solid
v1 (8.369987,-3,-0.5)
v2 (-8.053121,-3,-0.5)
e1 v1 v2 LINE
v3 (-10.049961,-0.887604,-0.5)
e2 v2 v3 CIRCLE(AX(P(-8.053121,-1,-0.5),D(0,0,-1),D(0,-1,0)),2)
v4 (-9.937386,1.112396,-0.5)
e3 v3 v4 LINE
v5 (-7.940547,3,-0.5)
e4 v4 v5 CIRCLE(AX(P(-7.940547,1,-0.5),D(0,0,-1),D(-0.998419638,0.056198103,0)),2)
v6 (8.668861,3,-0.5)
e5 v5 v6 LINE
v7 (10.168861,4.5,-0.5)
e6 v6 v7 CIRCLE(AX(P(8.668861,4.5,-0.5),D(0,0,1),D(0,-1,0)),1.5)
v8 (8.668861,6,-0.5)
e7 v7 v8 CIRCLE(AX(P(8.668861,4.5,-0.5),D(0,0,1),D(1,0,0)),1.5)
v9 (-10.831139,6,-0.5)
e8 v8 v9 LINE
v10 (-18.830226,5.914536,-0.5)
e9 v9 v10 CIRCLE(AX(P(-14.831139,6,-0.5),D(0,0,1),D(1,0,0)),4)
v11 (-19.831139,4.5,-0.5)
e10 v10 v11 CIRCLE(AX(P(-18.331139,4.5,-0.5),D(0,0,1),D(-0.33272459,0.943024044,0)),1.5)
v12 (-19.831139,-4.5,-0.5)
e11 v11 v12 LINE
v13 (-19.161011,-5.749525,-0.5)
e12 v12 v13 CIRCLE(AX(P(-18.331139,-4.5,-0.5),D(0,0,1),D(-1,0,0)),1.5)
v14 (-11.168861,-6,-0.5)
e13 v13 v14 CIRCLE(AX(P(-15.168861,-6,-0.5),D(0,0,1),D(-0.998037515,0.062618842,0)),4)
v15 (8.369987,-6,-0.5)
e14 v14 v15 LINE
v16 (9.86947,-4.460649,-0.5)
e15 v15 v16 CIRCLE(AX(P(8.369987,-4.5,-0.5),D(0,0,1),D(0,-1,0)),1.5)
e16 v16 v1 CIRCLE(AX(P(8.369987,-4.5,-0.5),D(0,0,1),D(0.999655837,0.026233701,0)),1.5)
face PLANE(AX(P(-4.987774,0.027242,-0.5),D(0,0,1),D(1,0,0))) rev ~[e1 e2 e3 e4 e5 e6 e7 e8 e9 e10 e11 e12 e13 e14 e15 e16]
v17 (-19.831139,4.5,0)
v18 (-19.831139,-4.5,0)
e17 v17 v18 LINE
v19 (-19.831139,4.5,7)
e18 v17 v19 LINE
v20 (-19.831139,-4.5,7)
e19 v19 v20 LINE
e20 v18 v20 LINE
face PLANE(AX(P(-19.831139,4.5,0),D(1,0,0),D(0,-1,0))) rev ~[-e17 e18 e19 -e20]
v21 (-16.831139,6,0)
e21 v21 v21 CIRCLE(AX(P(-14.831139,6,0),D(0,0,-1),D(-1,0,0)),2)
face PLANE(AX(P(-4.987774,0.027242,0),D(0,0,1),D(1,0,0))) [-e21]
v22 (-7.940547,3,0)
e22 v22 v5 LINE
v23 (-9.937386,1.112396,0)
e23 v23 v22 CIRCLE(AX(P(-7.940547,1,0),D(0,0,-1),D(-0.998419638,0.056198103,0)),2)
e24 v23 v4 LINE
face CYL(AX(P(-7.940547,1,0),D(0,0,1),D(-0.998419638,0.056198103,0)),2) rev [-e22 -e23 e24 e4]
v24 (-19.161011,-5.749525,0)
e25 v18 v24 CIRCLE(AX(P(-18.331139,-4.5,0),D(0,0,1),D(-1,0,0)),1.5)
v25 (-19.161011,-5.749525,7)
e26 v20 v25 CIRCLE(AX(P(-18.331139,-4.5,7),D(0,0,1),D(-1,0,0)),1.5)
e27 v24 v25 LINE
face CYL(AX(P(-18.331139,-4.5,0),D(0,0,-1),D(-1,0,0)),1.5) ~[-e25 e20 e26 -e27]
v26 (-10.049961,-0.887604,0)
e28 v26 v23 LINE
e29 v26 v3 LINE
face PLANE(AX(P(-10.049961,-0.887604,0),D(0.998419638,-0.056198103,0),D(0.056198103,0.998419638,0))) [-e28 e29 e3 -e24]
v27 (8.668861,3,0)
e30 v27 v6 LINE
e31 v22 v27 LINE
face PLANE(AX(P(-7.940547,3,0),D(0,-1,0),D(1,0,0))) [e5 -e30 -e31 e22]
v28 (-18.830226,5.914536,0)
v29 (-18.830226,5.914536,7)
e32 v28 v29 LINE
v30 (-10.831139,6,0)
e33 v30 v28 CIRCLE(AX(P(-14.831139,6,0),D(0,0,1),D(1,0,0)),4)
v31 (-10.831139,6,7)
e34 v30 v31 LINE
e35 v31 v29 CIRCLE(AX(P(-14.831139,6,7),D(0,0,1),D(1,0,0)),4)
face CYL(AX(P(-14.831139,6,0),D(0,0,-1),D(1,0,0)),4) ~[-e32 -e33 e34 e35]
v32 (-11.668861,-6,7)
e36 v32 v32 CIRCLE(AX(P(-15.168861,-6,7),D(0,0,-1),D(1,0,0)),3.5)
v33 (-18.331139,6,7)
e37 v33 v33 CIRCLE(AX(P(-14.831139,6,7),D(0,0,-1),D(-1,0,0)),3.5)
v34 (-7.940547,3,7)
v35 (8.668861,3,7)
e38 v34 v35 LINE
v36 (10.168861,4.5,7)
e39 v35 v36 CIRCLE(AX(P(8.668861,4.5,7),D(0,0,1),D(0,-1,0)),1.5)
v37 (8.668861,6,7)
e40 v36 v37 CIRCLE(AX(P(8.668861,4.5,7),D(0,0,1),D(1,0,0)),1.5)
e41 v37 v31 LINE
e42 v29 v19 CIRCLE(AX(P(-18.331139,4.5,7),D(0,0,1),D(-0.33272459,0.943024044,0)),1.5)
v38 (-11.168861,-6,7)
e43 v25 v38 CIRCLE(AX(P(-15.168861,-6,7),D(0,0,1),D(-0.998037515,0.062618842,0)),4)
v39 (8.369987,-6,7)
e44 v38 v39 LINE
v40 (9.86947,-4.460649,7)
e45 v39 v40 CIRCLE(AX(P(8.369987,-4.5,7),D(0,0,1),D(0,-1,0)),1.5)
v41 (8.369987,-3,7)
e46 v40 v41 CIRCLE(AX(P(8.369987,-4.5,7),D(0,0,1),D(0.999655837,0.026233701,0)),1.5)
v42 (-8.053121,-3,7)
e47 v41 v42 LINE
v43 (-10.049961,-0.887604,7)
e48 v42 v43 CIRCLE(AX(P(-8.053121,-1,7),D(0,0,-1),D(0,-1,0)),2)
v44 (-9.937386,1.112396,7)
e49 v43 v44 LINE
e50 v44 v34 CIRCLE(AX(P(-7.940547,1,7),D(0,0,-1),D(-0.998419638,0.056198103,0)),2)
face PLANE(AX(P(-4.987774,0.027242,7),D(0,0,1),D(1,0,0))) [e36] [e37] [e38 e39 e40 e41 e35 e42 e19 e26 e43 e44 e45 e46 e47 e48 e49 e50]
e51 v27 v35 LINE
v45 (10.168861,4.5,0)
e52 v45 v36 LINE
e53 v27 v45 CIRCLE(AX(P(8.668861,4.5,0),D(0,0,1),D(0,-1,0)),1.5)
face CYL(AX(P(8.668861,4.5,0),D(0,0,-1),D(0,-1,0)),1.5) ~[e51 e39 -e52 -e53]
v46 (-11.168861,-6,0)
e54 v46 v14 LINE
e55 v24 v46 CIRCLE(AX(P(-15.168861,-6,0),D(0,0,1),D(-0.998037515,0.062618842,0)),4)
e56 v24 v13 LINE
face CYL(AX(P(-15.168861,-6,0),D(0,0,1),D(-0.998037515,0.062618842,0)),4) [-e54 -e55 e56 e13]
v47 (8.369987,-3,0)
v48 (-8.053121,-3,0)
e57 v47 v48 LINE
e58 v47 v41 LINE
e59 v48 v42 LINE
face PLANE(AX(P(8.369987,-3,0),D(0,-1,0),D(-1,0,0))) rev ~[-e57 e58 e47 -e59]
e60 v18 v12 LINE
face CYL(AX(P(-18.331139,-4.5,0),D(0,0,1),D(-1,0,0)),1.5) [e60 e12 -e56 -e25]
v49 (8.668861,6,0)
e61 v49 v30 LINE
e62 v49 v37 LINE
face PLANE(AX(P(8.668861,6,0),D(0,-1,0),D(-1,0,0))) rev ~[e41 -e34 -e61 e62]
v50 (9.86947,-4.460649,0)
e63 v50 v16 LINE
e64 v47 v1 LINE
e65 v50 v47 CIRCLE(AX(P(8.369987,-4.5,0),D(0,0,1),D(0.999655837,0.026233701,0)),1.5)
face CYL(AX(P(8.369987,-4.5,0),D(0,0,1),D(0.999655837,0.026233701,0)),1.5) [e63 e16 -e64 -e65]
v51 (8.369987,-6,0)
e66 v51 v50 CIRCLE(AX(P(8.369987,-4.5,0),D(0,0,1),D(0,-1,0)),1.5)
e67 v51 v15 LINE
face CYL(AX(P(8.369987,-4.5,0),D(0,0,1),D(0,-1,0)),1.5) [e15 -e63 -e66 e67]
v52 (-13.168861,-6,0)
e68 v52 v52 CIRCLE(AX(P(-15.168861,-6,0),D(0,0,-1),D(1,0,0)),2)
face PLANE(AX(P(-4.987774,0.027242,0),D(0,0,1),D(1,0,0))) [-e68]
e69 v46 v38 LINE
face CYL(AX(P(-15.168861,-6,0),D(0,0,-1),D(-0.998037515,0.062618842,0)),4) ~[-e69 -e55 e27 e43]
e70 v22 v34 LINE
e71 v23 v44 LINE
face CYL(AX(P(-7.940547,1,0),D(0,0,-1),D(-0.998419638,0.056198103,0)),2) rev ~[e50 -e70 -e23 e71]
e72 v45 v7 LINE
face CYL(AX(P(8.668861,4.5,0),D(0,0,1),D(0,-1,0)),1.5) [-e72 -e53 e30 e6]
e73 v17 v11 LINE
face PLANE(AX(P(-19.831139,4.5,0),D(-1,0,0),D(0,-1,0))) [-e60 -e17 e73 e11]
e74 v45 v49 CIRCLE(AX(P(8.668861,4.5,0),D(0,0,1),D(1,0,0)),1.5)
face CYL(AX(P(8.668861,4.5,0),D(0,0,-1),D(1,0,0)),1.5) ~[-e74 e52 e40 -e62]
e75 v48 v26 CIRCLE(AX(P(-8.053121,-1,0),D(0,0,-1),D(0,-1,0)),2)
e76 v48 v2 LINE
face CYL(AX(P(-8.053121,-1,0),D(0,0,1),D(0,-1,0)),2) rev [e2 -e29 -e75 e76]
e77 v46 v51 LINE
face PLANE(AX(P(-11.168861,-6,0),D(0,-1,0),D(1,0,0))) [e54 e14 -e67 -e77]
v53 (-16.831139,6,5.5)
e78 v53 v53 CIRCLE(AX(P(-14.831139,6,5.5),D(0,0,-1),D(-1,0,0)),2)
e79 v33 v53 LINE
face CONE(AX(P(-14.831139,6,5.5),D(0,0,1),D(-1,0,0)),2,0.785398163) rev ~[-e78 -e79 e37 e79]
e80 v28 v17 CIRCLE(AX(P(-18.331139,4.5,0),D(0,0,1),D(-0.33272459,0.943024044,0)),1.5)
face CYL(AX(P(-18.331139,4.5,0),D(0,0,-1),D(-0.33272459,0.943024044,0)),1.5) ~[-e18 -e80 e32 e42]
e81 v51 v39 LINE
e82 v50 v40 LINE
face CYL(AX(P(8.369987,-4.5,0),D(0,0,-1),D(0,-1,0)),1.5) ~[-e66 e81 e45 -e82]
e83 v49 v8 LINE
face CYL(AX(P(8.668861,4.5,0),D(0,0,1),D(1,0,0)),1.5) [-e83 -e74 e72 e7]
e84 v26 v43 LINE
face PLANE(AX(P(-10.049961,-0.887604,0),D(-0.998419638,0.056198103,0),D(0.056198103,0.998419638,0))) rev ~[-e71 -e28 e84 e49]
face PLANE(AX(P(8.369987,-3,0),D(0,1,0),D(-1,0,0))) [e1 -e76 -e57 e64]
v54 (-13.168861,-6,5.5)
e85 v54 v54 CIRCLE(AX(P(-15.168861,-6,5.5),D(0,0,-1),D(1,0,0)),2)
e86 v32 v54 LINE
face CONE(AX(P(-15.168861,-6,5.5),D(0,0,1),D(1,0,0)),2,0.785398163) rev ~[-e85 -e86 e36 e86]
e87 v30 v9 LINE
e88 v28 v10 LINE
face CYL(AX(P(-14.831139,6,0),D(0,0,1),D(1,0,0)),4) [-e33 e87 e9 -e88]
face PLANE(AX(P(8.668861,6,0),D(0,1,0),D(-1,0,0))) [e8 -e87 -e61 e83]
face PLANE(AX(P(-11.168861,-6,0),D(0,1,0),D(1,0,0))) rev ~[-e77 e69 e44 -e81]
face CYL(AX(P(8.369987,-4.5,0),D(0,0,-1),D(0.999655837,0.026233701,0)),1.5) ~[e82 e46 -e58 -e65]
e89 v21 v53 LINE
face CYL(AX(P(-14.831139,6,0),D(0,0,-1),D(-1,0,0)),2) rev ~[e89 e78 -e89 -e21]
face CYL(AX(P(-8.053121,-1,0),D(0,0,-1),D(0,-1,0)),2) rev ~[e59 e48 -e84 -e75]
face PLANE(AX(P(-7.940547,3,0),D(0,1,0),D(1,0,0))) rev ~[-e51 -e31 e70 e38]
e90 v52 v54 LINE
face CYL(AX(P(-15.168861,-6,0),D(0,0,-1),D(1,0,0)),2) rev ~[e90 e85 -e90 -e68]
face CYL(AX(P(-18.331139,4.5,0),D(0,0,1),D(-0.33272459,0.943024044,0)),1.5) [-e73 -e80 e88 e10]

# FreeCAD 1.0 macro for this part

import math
import FreeCAD as App
import Part
import Sketcher

V = App.Vector


def edges_at(feature, points):
    """Names of the edges that pass closest to the given points."""
    edges = feature.Shape.Edges
    near = lambda p: min(range(len(edges)), key=lambda i: edges[i].distToShape(Part.Vertex(*p))[0])
    return sorted({f"Edge{near(p) + 1}" for p in points})

doc = App.newDocument("Part")
body = doc.addObject("PartDesign::Body", "Body")

sketch1 = body.newObject("Sketcher::SketchObject", "Sketch")
sketch1.AttachmentSupport = (doc.getObject("XY_Plane"), [""])
sketch1.MapMode = "FlatFace"
sketch1.addGeometry([
    Part.ArcOfCircle(Part.Circle(V(8.369987, -4.5, 0), V(0, 0, 1), 1.5), math.radians(1.503253), math.radians(90)),
    Part.LineSegment(V(8.369987, -3, 0), V(-8.053121, -3, 0)),
    Part.ArcOfCircle(Part.Circle(V(-8.053121, -1, 0), V(0, 0, 1), 2), math.radians(176.778389), math.radians(270)),
    Part.LineSegment(V(-10.049961, -0.887604, 0), V(-9.937386, 1.112396, 0)),
    Part.ArcOfCircle(Part.Circle(V(-7.940547, 1, 0), V(0, 0, 1), 2), math.radians(90), math.radians(176.778389)),
    Part.LineSegment(V(-7.940547, 3, 0), V(8.668861, 3, 0)),
    Part.ArcOfCircle(Part.Circle(V(8.668861, 4.5, 0), V(0, 0, 1), 1.5), math.radians(-90), math.radians(0)),
    Part.ArcOfCircle(Part.Circle(V(8.668861, 4.5, 0), V(0, 0, 1), 1.5), math.radians(0), math.radians(90)),
    Part.LineSegment(V(8.668861, 6, 0), V(-10.831139, 6, 0)),
    Part.ArcOfCircle(Part.Circle(V(-14.831139, 6, 0), V(0, 0, 1), 4), math.radians(0), math.radians(181.224274)),
    Part.ArcOfCircle(Part.Circle(V(-18.331139, 4.5, 0), V(0, 0, 1), 1.5), math.radians(109.434231), math.radians(180)),
    Part.LineSegment(V(-19.831139, 4.5, 0), V(-19.831139, -4.5, 0)),
    Part.ArcOfCircle(Part.Circle(V(-18.331139, -4.5, 0), V(0, 0, 1), 1.5), math.radians(180), math.radians(236.409856)),
    Part.ArcOfCircle(Part.Circle(V(-15.168861, -6, 0), V(0, 0, 1), 4), math.radians(176.409856), math.radians(360)),
    Part.LineSegment(V(-11.168861, -6, 0), V(8.369987, -6, 0)),
    Part.ArcOfCircle(Part.Circle(V(8.369987, -4.5, 0), V(0, 0, 1), 1.5), math.radians(-90), math.radians(1.503253)),
    Part.Circle(V(-15.168861, -6, 0), V(0, 0, 1), 2),
    Part.Circle(V(-14.831139, 6, 0), V(0, 0, 1), 2),
], False)
sketch1.addConstraint([
    Sketcher.Constraint("Coincident", 0, 2, 1, 1),
    Sketcher.Constraint("Coincident", 1, 2, 2, 2),
    Sketcher.Constraint("Coincident", 2, 1, 3, 1),
    Sketcher.Constraint("Coincident", 3, 2, 4, 2),
    Sketcher.Constraint("Coincident", 4, 1, 5, 1),
    Sketcher.Constraint("Coincident", 5, 2, 6, 1),
    Sketcher.Constraint("Coincident", 6, 2, 7, 1),
    Sketcher.Constraint("Coincident", 7, 2, 8, 1),
    Sketcher.Constraint("Coincident", 8, 2, 9, 1),
    Sketcher.Constraint("Coincident", 9, 2, 10, 1),
    Sketcher.Constraint("Coincident", 10, 2, 11, 1),
    Sketcher.Constraint("Coincident", 11, 2, 12, 1),
    Sketcher.Constraint("Coincident", 12, 2, 13, 1),
    Sketcher.Constraint("Coincident", 13, 2, 14, 1),
    Sketcher.Constraint("Coincident", 14, 2, 15, 1),
    Sketcher.Constraint("Coincident", 15, 2, 0, 1),
    Sketcher.Constraint("Horizontal", 1),
    Sketcher.Constraint("Horizontal", 5),
    Sketcher.Constraint("Horizontal", 8),
    Sketcher.Constraint("Vertical", 11),
    Sketcher.Constraint("Horizontal", 14),
    Sketcher.Constraint("Coincident", 7, 3, 6, 3),
    Sketcher.Constraint("Coincident", 15, 3, 0, 3),
    Sketcher.Constraint("Coincident", 16, 3, 13, 3),
    Sketcher.Constraint("Coincident", 17, 3, 9, 3),
    Sketcher.Constraint("Diameter", 16, 4.0),
    Sketcher.Constraint("Diameter", 17, 4.0),
    Sketcher.Constraint("Radius", 2, 2.0),
    Sketcher.Constraint("Radius", 4, 2.0),
    Sketcher.Constraint("Radius", 9, 4.0),
    Sketcher.Constraint("Radius", 13, 4.0),
    Sketcher.Constraint("Radius", 0, 1.5),
    Sketcher.Constraint("Radius", 6, 1.5),
    Sketcher.Constraint("Radius", 10, 1.5),
    Sketcher.Constraint("Radius", 12, 1.5),
    Sketcher.Constraint("DistanceY", 11, 2, 11, 1, 9.0),
    Sketcher.Constraint("DistanceX", 8, 2, 8, 1, 19.5),
    Sketcher.Constraint("DistanceY", 2, 3, -1, 1, 1.0),
    Sketcher.Constraint("DistanceY", -1, 1, 4, 3, 1.0),
    Sketcher.Constraint("DistanceY", -1, 1, 9, 3, 6.0),
    Sketcher.Constraint("DistanceY", 13, 3, -1, 1, 6.0),
    Sketcher.Constraint("DistanceX", 10, 3, 6, 3, 27.0),
    Sketcher.Constraint("DistanceY", 12, 3, 10, 3, 9.0),
    Sketcher.Constraint("DistanceY", 2, 1, 3, 2, 2.0),
    Sketcher.Constraint("DistanceY", 0, 3, 6, 2, 9.0),
    Sketcher.Constraint("DistanceX", 10, 2, 9, 3, 5.0),
    Sketcher.Constraint("DistanceY", 12, 3, 10, 2, 9.0),
    Sketcher.Constraint("DistanceY", -1, 1, 10, 3, 4.5),
    Sketcher.Constraint("DistanceX", 5, 2, 6, 2, 1.5),
    Sketcher.Constraint("DistanceX", 5, 1, 5, 2, 16.609408),
    Sketcher.Constraint("DistanceX", 13, 3, 2, 1, 5.118901),
    Sketcher.Constraint("DistanceX", 1, 2, 1, 1, 16.423108),
    Sketcher.Constraint("DistanceX", 14, 1, 14, 2, 19.538848),
    Sketcher.Constraint("DistanceX", 2, 3, -1, 1, 8.053121),
    Sketcher.Constraint("DistanceX", -1, 1, 6, 3, 8.668861),
    Sketcher.Constraint("DistanceX", 13, 3, -1, 1, 15.168861),
    Sketcher.Constraint("DistanceX", 1, 2, -1, 1, 8.053121),
    Sketcher.Constraint("DistanceX", -1, 1, 15, 2, 9.86947),
    Sketcher.Constraint("DistanceY", 15, 2, -1, 1, 4.460649),
    Sketcher.Constraint("DistanceX", 4, 3, 6, 3, 16.609408),
])
pad1 = body.newObject("PartDesign::Pad", "Pad")
pad1.Profile = sketch1
pad1.Length = 7

sketch2 = body.newObject("Sketcher::SketchObject", "Sketch001")
sketch2.AttachmentSupport = (doc.getObject("XY_Plane"), [""])
sketch2.MapMode = "FlatFace"
sketch2.addGeometry([
    Part.ArcOfCircle(Part.Circle(V(8.369987, -4.5, 0), V(0, 0, 1), 1.5), math.radians(1.503253), math.radians(90)),
    Part.LineSegment(V(8.369987, -3, 0), V(-8.053121, -3, 0)),
    Part.ArcOfCircle(Part.Circle(V(-8.053121, -1, 0), V(0, 0, 1), 2), math.radians(176.778389), math.radians(270)),
    Part.LineSegment(V(-10.049961, -0.887604, 0), V(-9.937386, 1.112396, 0)),
    Part.ArcOfCircle(Part.Circle(V(-7.940547, 1, 0), V(0, 0, 1), 2), math.radians(90), math.radians(176.778389)),
    Part.LineSegment(V(-7.940547, 3, 0), V(8.668861, 3, 0)),
    Part.ArcOfCircle(Part.Circle(V(8.668861, 4.5, 0), V(0, 0, 1), 1.5), math.radians(-90), math.radians(0)),
    Part.ArcOfCircle(Part.Circle(V(8.668861, 4.5, 0), V(0, 0, 1), 1.5), math.radians(0), math.radians(90)),
    Part.LineSegment(V(8.668861, 6, 0), V(-10.831139, 6, 0)),
    Part.ArcOfCircle(Part.Circle(V(-14.831139, 6, 0), V(0, 0, 1), 4), math.radians(0), math.radians(181.224274)),
    Part.ArcOfCircle(Part.Circle(V(-18.331139, 4.5, 0), V(0, 0, 1), 1.5), math.radians(109.434231), math.radians(180)),
    Part.LineSegment(V(-19.831139, 4.5, 0), V(-19.831139, -4.5, 0)),
    Part.ArcOfCircle(Part.Circle(V(-18.331139, -4.5, 0), V(0, 0, 1), 1.5), math.radians(180), math.radians(236.409856)),
    Part.ArcOfCircle(Part.Circle(V(-15.168861, -6, 0), V(0, 0, 1), 4), math.radians(176.409856), math.radians(360)),
    Part.LineSegment(V(-11.168861, -6, 0), V(8.369987, -6, 0)),
    Part.ArcOfCircle(Part.Circle(V(8.369987, -4.5, 0), V(0, 0, 1), 1.5), math.radians(-90), math.radians(1.503253)),
], False)
sketch2.addConstraint([
    Sketcher.Constraint("Coincident", 0, 2, 1, 1),
    Sketcher.Constraint("Coincident", 1, 2, 2, 2),
    Sketcher.Constraint("Coincident", 2, 1, 3, 1),
    Sketcher.Constraint("Coincident", 3, 2, 4, 2),
    Sketcher.Constraint("Coincident", 4, 1, 5, 1),
    Sketcher.Constraint("Coincident", 5, 2, 6, 1),
    Sketcher.Constraint("Coincident", 6, 2, 7, 1),
    Sketcher.Constraint("Coincident", 7, 2, 8, 1),
    Sketcher.Constraint("Coincident", 8, 2, 9, 1),
    Sketcher.Constraint("Coincident", 9, 2, 10, 1),
    Sketcher.Constraint("Coincident", 10, 2, 11, 1),
    Sketcher.Constraint("Coincident", 11, 2, 12, 1),
    Sketcher.Constraint("Coincident", 12, 2, 13, 1),
    Sketcher.Constraint("Coincident", 13, 2, 14, 1),
    Sketcher.Constraint("Coincident", 14, 2, 15, 1),
    Sketcher.Constraint("Coincident", 15, 2, 0, 1),
    Sketcher.Constraint("Horizontal", 1),
    Sketcher.Constraint("Horizontal", 5),
    Sketcher.Constraint("Horizontal", 8),
    Sketcher.Constraint("Vertical", 11),
    Sketcher.Constraint("Horizontal", 14),
    Sketcher.Constraint("Coincident", 7, 3, 6, 3),
    Sketcher.Constraint("Coincident", 15, 3, 0, 3),
    Sketcher.Constraint("Radius", 2, 2.0),
    Sketcher.Constraint("Radius", 4, 2.0),
    Sketcher.Constraint("Radius", 9, 4.0),
    Sketcher.Constraint("Radius", 13, 4.0),
    Sketcher.Constraint("Radius", 0, 1.5),
    Sketcher.Constraint("Radius", 6, 1.5),
    Sketcher.Constraint("Radius", 10, 1.5),
    Sketcher.Constraint("Radius", 12, 1.5),
    Sketcher.Constraint("DistanceY", 11, 2, 11, 1, 9.0),
    Sketcher.Constraint("DistanceX", 8, 2, 8, 1, 19.5),
    Sketcher.Constraint("DistanceY", 2, 3, -1, 1, 1.0),
    Sketcher.Constraint("DistanceY", -1, 1, 4, 3, 1.0),
    Sketcher.Constraint("DistanceY", -1, 1, 9, 3, 6.0),
    Sketcher.Constraint("DistanceY", 13, 3, -1, 1, 6.0),
    Sketcher.Constraint("DistanceX", 10, 3, 6, 3, 27.0),
    Sketcher.Constraint("DistanceY", 12, 3, 10, 3, 9.0),
    Sketcher.Constraint("DistanceY", 2, 1, 3, 2, 2.0),
    Sketcher.Constraint("DistanceY", 0, 3, 6, 2, 9.0),
    Sketcher.Constraint("DistanceX", 10, 2, 9, 3, 5.0),
    Sketcher.Constraint("DistanceY", 12, 3, 10, 2, 9.0),
    Sketcher.Constraint("DistanceY", -1, 1, 10, 3, 4.5),
    Sketcher.Constraint("DistanceX", 5, 2, 6, 2, 1.5),
    Sketcher.Constraint("DistanceX", 5, 1, 5, 2, 16.609408),
    Sketcher.Constraint("DistanceX", 13, 3, 2, 1, 5.118901),
    Sketcher.Constraint("DistanceX", 1, 2, 1, 1, 16.423108),
    Sketcher.Constraint("DistanceX", 14, 1, 14, 2, 19.538848),
    Sketcher.Constraint("DistanceX", 2, 3, -1, 1, 8.053121),
    Sketcher.Constraint("DistanceX", -1, 1, 6, 3, 8.668861),
    Sketcher.Constraint("DistanceX", 13, 3, -1, 1, 15.168861),
    Sketcher.Constraint("DistanceX", 1, 2, -1, 1, 8.053121),
    Sketcher.Constraint("DistanceX", -1, 1, 15, 2, 9.86947),
    Sketcher.Constraint("DistanceY", 15, 2, -1, 1, 4.460649),
    Sketcher.Constraint("DistanceX", 4, 3, 6, 3, 16.609408),
])
pad2 = body.newObject("PartDesign::Pad", "Pad001")
pad2.Profile = sketch2
pad2.Length = 0.5
pad2.Reversed = True
doc.recompute()

chamfer = body.newObject("PartDesign::Chamfer", "Chamfer")
chamfer.Base = (pad2, edges_at(pad2, [(-12.831, 6, 7), (-17.169, -6, 7)]))
chamfer.Size = 1.5

doc.recompute()
